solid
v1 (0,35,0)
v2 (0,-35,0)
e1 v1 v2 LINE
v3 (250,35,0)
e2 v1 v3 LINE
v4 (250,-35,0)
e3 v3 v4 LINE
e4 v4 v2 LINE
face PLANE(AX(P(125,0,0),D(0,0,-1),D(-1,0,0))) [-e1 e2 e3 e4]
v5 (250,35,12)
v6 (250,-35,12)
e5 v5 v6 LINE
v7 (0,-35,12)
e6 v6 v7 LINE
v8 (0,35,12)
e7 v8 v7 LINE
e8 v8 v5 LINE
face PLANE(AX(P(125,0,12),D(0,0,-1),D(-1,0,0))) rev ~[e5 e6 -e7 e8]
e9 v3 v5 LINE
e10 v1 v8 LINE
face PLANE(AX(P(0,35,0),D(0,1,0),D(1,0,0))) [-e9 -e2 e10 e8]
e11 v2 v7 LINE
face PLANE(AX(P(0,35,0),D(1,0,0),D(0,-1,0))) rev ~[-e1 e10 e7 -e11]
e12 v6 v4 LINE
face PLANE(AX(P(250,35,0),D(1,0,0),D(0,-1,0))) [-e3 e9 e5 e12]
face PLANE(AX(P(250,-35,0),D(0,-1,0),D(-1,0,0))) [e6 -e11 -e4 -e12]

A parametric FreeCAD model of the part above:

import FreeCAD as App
import Part
import Sketcher
Q = App.Units.Quantity


def add_polygon(sketch, points):
    """Adds a closed chain of lines whose ends are joined by coincident constraints."""
    first, n = sketch.GeometryCount, len(points)
    for a, b in zip(points, points[1:] + points[:1]):
        sketch.addGeometry(Part.LineSegment(App.Vector(*a, 0), App.Vector(*b, 0)), False)
    for i in range(n):
        sketch.addConstraint(Sketcher.Constraint("Coincident", first + i, 2, first + (i + 1) % n, 1))

doc = App.newDocument("Part")
params = doc.addObject("Spreadsheet::Sheet", "Params")
for row, (alias, value) in enumerate([
    ("sketch1_width", "250 mm"),
    ("sketch1_height", "70 mm"),
    ("pad1_length", "12 mm"),
    ("sketch2_width", "250 mm"),
    ("pocket1_length", "1 mm"),
], start=1):
    params.set(f"A{row}", alias)
    params.set(f"B{row}", "=" + value)
    params.setAlias(f"B{row}", alias)

body = doc.addObject("PartDesign::Body", "Body")

sketch1 = body.newObject("Sketcher::SketchObject", "Sketch")
sketch1.AttachmentSupport = (doc.getObject("XY_Plane"), [""])
sketch1.MapMode = "FlatFace"
add_polygon(sketch1, [(0, 35), (0, -35), (250, -35), (250, 35)])
sketch1.addConstraint(Sketcher.Constraint("Vertical", 0))
sketch1.addConstraint(Sketcher.Constraint("Horizontal", 1))
sketch1.addConstraint(Sketcher.Constraint("Vertical", 2))
sketch1.addConstraint(Sketcher.Constraint("Horizontal", 3))
sketch1.addConstraint(Sketcher.Constraint("Symmetric", 0, 2, 3, 2, -1, 1))
sketch1.addConstraint(Sketcher.Constraint("DistanceX", 1, 1, 1, 2, Q("250 mm")))
sketch1.addConstraint(Sketcher.Constraint("DistanceY", 0, 2, 0, 1, Q("70 mm")))
sketch1.setExpression("Constraints[9]", "Params.sketch1_width")
sketch1.setExpression("Constraints[10]", "Params.sketch1_height")
pad1 = body.newObject("PartDesign::Pad", "Pad")
pad1.Profile = sketch1
pad1.setExpression("Length", "Params.pad1_length")

sketch2 = body.newObject("Sketcher::SketchObject", "Sketch001")
sketch2.AttachmentSupport = (doc.getObject("XY_Plane"), [""])
sketch2.MapMode = "FlatFace"
sketch2.AttachmentOffset = App.Placement(App.Vector(0, 0, 12), App.Rotation())
add_polygon(sketch2, [(0, -35), (0, -72), (250, -35)])
sketch2.addConstraint(Sketcher.Constraint("Vertical", 0))
sketch2.addConstraint(Sketcher.Constraint("Horizontal", 2))
sketch2.addConstraint(Sketcher.Constraint("PointOnObject", 0, 2, -2))
sketch2.addConstraint(Sketcher.Constraint("DistanceX", 2, 2, 2, 1, Q("250 mm")))
sketch2.addConstraint(Sketcher.Constraint("DistanceY", 1, 2, -1, 1, Q("35 mm")))
sketch2.addConstraint(Sketcher.Constraint("Distance", 1, Q("252.719239 mm")))
sketch2.setExpression("Constraints[6]", "Params.sketch2_width")
pocket1 = body.newObject("PartDesign::Pocket", "Pocket")
pocket1.Profile = sketch2
pocket1.setExpression("Length", "Params.pocket1_length")

doc.recompute()
